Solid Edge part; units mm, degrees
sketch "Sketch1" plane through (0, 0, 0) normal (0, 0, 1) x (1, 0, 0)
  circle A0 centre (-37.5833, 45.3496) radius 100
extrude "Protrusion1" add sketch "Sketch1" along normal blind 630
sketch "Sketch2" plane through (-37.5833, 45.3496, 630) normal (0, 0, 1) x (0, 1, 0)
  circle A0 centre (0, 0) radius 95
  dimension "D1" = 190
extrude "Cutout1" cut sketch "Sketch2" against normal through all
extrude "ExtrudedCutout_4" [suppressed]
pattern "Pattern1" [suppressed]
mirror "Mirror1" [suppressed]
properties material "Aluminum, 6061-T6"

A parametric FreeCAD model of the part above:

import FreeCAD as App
import Part
import Sketcher
Q = App.Units.Quantity

doc = App.newDocument("Part")
params = doc.addObject("Spreadsheet::Sheet", "Params")
for row, (alias, value) in enumerate([
    ("sketch1_diameter", "200 mm"),
    ("pad1_length", "630 mm"),
    ("sketch2_diameter", "190 mm"),
], start=1):
    params.set(f"A{row}", alias)
    params.set(f"B{row}", "=" + value)
    params.setAlias(f"B{row}", alias)

body = doc.addObject("PartDesign::Body", "Body")

sketch1 = doc.addObject("Sketcher::SketchObject", "Sketch")
body.addObject(sketch1)
sketch1.AttachmentSupport = (doc.XY_Plane, [""])
sketch1.MapMode = "FlatFace"
sketch1.addGeometry(Part.Circle(App.Vector(-38, 45, 0), App.Vector(0, 0, 1), 100), False)
sketch1.addConstraint([
    Sketcher.Constraint("Diameter", 0, Q("200 mm")),
    Sketcher.Constraint("DistanceX", 0, 3, -1, 1, Q("37.5833 mm")),
    Sketcher.Constraint("DistanceY", -1, 1, 0, 3, Q("45.3496 mm")),
])
sketch1.setExpression("Constraints[0]", "Params.sketch1_diameter")
pad1 = doc.addObject("PartDesign::Pad", "Pad")
body.addObject(pad1)
pad1.Profile = sketch1
pad1.setExpression("Length", "Params.pad1_length")

sketch2 = doc.addObject("Sketcher::SketchObject", "Sketch001")
body.addObject(sketch2)
sketch2.AttachmentSupport = (doc.XY_Plane, [""])
sketch2.MapMode = "FlatFace"
sketch2.AttachmentOffset = App.Placement(App.Vector(0, 0, 630), App.Rotation())
sketch2.addGeometry(Part.Circle(App.Vector(-38, 45, 0), App.Vector(0, 0, 1), 95), False)
sketch2.addConstraint([
    Sketcher.Constraint("Diameter", 0, Q("190 mm")),
    Sketcher.Constraint("DistanceX", 0, 3, -1, 1, Q("37.5833 mm")),
    Sketcher.Constraint("DistanceY", -1, 1, 0, 3, Q("45.3496 mm")),
])
sketch2.setExpression("Constraints[0]", "Params.sketch2_diameter")
pocket1 = doc.addObject("PartDesign::Pocket", "Pocket")
body.addObject(pocket1)
pocket1.Profile = sketch2
pocket1.Type = "ThroughAll"

doc.recompute()
